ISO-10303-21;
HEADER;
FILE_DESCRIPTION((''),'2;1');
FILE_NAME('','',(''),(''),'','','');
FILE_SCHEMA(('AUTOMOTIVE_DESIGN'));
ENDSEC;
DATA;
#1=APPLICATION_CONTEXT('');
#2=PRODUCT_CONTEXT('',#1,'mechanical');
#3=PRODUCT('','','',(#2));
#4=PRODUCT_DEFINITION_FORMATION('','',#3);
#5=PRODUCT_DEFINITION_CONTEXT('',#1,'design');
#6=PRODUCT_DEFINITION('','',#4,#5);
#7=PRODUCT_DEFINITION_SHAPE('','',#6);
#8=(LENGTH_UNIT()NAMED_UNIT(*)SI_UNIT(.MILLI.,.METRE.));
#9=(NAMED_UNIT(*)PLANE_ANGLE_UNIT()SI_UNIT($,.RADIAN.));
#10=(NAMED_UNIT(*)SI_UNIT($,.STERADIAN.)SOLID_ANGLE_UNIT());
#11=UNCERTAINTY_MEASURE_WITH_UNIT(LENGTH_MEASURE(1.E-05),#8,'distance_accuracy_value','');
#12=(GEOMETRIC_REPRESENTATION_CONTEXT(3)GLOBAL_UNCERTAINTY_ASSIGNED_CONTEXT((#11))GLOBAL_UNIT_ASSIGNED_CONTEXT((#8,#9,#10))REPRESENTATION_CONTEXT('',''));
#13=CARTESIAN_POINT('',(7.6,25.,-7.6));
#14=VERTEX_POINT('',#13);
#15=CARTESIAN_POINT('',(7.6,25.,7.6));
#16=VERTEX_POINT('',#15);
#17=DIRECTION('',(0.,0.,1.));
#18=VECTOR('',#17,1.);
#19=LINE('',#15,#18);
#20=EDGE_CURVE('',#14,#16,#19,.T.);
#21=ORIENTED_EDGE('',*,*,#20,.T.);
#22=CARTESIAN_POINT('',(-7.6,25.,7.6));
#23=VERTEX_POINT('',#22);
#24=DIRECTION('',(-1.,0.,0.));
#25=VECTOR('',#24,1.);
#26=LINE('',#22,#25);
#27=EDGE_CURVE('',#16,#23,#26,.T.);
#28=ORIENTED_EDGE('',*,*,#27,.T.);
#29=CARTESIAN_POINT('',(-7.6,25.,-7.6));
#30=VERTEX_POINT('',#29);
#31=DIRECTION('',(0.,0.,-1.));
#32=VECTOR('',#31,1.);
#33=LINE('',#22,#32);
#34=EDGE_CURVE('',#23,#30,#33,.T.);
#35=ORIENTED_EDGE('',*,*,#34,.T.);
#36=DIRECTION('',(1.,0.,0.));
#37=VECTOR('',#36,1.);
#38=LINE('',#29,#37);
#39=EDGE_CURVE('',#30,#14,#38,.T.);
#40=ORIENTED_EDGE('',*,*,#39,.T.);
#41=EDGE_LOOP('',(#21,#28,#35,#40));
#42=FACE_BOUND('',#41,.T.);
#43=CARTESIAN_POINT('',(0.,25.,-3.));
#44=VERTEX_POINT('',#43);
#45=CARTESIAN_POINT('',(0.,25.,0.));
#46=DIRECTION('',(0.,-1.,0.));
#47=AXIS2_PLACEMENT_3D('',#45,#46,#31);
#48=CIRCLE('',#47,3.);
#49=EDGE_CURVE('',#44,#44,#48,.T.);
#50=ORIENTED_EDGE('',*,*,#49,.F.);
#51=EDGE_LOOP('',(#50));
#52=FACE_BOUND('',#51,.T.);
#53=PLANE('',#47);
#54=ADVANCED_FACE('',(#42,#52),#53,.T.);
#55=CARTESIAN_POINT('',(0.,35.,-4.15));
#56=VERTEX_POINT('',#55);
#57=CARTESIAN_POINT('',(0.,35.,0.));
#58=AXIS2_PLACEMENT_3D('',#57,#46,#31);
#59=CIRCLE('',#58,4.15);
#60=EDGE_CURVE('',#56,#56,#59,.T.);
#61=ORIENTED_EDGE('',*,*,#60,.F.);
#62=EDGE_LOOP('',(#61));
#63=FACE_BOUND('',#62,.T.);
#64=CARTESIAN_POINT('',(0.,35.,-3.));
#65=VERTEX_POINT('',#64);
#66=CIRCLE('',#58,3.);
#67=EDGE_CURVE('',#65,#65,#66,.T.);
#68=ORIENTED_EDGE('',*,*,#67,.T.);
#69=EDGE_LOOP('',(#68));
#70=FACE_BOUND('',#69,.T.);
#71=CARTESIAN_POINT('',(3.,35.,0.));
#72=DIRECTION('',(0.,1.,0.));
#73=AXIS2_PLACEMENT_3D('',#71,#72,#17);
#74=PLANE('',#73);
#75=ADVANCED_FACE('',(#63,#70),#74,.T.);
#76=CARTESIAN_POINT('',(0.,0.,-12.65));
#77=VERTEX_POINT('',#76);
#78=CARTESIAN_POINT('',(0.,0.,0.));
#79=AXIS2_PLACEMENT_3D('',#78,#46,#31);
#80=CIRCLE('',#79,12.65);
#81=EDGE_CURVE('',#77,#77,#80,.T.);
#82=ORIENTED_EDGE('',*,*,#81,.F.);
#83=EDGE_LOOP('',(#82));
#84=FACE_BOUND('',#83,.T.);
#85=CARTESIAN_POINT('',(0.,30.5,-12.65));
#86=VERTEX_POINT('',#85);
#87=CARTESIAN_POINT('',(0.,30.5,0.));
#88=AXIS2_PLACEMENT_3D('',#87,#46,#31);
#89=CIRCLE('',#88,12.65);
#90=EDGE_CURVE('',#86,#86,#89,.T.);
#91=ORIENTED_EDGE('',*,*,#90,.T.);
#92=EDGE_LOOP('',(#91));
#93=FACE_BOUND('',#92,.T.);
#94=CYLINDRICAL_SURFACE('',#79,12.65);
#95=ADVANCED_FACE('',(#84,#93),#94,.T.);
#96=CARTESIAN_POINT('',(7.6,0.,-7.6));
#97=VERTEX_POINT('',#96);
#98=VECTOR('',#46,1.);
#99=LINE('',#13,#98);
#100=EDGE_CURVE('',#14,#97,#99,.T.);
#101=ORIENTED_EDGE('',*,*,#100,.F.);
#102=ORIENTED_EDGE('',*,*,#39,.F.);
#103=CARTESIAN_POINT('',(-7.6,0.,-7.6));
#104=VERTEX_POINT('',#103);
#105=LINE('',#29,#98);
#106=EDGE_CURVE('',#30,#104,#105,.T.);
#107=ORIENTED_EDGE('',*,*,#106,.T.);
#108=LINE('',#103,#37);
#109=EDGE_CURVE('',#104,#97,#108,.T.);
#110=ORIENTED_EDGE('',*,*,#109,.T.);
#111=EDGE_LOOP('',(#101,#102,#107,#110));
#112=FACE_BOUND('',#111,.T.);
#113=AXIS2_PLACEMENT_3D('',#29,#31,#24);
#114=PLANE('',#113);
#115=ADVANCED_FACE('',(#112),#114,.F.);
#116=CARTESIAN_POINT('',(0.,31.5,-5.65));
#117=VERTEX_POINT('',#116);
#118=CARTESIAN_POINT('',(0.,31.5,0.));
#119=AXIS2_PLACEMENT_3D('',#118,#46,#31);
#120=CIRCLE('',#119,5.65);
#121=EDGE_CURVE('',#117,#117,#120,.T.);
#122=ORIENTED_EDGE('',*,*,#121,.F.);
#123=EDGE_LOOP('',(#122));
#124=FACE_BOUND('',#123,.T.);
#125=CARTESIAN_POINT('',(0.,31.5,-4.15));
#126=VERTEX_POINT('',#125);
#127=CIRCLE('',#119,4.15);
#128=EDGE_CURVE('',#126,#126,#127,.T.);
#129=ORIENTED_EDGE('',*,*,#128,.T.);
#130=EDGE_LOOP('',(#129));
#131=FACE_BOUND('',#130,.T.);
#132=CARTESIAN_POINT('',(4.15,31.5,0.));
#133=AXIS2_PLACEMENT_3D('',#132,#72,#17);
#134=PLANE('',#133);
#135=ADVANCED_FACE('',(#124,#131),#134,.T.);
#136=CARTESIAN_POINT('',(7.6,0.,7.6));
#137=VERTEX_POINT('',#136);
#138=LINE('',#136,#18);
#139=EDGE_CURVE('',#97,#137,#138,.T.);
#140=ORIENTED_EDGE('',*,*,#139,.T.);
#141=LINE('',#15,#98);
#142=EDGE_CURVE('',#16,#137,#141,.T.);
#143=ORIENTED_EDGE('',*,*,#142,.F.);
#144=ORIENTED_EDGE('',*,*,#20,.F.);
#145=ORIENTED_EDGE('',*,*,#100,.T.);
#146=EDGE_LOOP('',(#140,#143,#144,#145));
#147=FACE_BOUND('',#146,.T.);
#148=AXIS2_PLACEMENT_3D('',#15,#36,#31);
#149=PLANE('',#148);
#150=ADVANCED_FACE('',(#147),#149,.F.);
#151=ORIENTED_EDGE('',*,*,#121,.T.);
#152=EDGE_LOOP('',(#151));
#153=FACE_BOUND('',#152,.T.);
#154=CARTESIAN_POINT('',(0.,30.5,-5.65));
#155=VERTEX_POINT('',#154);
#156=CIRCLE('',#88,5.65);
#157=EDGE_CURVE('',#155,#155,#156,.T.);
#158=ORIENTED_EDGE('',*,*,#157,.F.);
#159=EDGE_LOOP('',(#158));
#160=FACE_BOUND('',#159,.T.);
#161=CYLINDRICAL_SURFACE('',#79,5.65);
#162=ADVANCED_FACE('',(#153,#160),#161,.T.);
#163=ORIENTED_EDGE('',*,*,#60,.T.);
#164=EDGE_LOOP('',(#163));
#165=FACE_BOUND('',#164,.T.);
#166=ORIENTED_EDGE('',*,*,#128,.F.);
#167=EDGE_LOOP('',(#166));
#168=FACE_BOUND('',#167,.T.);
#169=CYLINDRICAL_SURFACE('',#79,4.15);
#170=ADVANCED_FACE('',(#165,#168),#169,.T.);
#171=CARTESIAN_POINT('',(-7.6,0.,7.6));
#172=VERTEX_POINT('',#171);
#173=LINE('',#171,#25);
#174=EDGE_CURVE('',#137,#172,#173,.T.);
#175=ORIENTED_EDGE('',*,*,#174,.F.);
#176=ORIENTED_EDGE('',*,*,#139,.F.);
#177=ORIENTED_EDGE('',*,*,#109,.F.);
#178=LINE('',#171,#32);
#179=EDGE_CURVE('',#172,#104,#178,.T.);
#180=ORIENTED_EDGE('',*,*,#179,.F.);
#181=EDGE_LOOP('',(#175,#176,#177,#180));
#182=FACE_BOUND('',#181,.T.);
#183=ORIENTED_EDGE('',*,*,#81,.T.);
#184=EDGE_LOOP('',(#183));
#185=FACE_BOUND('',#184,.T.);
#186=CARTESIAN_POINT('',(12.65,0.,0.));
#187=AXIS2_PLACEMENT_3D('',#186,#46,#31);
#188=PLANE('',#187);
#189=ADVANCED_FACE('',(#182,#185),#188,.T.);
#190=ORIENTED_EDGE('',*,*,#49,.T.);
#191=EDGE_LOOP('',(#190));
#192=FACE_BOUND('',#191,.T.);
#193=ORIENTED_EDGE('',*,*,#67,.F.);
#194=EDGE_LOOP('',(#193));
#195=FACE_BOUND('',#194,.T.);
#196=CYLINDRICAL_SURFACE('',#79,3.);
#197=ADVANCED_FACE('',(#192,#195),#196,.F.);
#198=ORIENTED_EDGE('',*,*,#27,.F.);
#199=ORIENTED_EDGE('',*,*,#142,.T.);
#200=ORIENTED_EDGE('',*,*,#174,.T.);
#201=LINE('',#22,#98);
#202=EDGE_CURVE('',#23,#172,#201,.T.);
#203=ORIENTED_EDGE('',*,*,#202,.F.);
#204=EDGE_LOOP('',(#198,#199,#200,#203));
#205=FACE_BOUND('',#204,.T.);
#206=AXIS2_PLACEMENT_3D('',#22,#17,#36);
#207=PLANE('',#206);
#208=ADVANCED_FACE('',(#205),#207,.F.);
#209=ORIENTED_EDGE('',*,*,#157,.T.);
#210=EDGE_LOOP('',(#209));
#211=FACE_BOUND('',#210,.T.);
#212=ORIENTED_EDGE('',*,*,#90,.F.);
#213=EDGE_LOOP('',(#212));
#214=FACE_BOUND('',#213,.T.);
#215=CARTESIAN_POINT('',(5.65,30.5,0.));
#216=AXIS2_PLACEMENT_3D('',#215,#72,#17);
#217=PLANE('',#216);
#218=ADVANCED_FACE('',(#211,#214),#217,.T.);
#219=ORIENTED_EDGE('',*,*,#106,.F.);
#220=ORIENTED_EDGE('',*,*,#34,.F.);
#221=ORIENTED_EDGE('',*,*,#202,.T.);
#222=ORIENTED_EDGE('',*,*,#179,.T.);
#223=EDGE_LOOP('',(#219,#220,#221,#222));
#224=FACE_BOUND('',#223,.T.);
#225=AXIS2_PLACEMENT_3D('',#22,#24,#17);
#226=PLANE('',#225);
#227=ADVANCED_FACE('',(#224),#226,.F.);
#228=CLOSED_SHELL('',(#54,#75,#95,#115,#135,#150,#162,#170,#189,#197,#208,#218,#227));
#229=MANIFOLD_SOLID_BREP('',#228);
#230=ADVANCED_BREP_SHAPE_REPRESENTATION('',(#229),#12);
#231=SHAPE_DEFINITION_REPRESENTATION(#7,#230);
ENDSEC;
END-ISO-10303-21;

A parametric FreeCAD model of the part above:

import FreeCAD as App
import Part
import Sketcher

V = App.Vector


def add_polygon(sketch, points):
    """Adds a closed chain of lines whose ends are joined by coincident constraints."""
    first, n = sketch.GeometryCount, len(points)
    for a, b in zip(points, points[1:] + points[:1]):
        sketch.addGeometry(Part.LineSegment(App.Vector(*a, 0), App.Vector(*b, 0)), False)
    for i in range(n):
        sketch.addConstraint(Sketcher.Constraint("Coincident", first + i, 2, first + (i + 1) % n, 1))

doc = App.newDocument("Part")
params = doc.addObject("Spreadsheet::Sheet", "Params")
for row, (alias, value) in enumerate([
    ("sketch1_width", "3 mm"),
    ("sketch1_width2", "7 mm"),
    ("sketch1_height", "20 mm"),
    ("sketch1_height2", "1 mm"),
    ("sketch1_height3", "15 mm"),
    ("revolution_angle", "360 deg"),
    ("sketch2_width", "15.2 mm"),
    ("pocket1_length", "25 mm"),
], start=1):
    params.set(f"A{row}", alias)
    params.set(f"B{row}", "=" + value)
    params.setAlias(f"B{row}", alias)

body = doc.addObject("PartDesign::Body", "Body")

sketch1 = body.newObject("Sketcher::SketchObject", "Sketch")
sketch1.AttachmentSupport = (doc.getObject("XY_Plane"), [""])
sketch1.MapMode = "FlatFace"
add_polygon(sketch1, [(3, 20), (0, 20), (0, 0), (12.7, 0), (12.7, 30.5), (5.7, 30.5), (5.7, 31.5), (4.2, 31.5), (4.2, 35), (3, 35)])
sketch1.addConstraint([
    Sketcher.Constraint("Horizontal", 0),
    Sketcher.Constraint("Vertical", 1),
    Sketcher.Constraint("Horizontal", 2),
    Sketcher.Constraint("Vertical", 3),
    Sketcher.Constraint("Horizontal", 4),
    Sketcher.Constraint("Vertical", 5),
    Sketcher.Constraint("Horizontal", 6),
    Sketcher.Constraint("Vertical", 7),
    Sketcher.Constraint("Horizontal", 8),
    Sketcher.Constraint("Vertical", 9),
    Sketcher.Constraint("Coincident", 1, 2, -1, 1),
    Sketcher.Constraint("DistanceX", 0, 2, 0, 1, 3.0),
    Sketcher.Constraint("DistanceX", 4, 2, 4, 1, 7.0),
    Sketcher.Constraint("DistanceY", 1, 2, 1, 1, 20.0),
    Sketcher.Constraint("DistanceY", 5, 1, 5, 2, 1.0),
    Sketcher.Constraint("DistanceY", 9, 2, 9, 1, 15.0),
    Sketcher.Constraint("DistanceX", 6, 2, 6, 1, 1.5),
    Sketcher.Constraint("DistanceY", 3, 1, 3, 2, 30.5),
    Sketcher.Constraint("DistanceX", 2, 1, 2, 2, 12.65),
])
sketch1.setExpression("Constraints[21]", "Params.sketch1_width")
sketch1.setExpression("Constraints[22]", "Params.sketch1_width2")
sketch1.setExpression("Constraints[23]", "Params.sketch1_height")
sketch1.setExpression("Constraints[24]", "Params.sketch1_height2")
sketch1.setExpression("Constraints[25]", "Params.sketch1_height3")
revolution = body.newObject("PartDesign::Revolution", "Revolution")
revolution.Profile = sketch1
revolution.ReferenceAxis = (sketch1, ["V_Axis"])
revolution.setExpression("Angle", "Params.revolution_angle")

sketch2 = body.newObject("Sketcher::SketchObject", "Sketch001")
sketch2.AttachmentSupport = (doc.getObject("XZ_Plane"), [""])
sketch2.MapMode = "FlatFace"
add_polygon(sketch2, [(-8, 8), (-8, -8), (8, -8), (8, 8)])
sketch2.addConstraint([
    Sketcher.Constraint("Vertical", 0),
    Sketcher.Constraint("Horizontal", 1),
    Sketcher.Constraint("Vertical", 2),
    Sketcher.Constraint("Horizontal", 3),
    Sketcher.Constraint("Symmetric", 0, 2, 2, 2, -1, 1),
    Sketcher.Constraint("Equal", 3, 0),
    Sketcher.Constraint("DistanceX", 1, 1, 1, 2, 15.2),
])
sketch2.setExpression("Constraints[10]", "Params.sketch2_width")
pocket1 = body.newObject("PartDesign::Pocket", "Pocket")
pocket1.Profile = sketch2
pocket1.setExpression("Length", "Params.pocket1_length")

doc.recompute()
